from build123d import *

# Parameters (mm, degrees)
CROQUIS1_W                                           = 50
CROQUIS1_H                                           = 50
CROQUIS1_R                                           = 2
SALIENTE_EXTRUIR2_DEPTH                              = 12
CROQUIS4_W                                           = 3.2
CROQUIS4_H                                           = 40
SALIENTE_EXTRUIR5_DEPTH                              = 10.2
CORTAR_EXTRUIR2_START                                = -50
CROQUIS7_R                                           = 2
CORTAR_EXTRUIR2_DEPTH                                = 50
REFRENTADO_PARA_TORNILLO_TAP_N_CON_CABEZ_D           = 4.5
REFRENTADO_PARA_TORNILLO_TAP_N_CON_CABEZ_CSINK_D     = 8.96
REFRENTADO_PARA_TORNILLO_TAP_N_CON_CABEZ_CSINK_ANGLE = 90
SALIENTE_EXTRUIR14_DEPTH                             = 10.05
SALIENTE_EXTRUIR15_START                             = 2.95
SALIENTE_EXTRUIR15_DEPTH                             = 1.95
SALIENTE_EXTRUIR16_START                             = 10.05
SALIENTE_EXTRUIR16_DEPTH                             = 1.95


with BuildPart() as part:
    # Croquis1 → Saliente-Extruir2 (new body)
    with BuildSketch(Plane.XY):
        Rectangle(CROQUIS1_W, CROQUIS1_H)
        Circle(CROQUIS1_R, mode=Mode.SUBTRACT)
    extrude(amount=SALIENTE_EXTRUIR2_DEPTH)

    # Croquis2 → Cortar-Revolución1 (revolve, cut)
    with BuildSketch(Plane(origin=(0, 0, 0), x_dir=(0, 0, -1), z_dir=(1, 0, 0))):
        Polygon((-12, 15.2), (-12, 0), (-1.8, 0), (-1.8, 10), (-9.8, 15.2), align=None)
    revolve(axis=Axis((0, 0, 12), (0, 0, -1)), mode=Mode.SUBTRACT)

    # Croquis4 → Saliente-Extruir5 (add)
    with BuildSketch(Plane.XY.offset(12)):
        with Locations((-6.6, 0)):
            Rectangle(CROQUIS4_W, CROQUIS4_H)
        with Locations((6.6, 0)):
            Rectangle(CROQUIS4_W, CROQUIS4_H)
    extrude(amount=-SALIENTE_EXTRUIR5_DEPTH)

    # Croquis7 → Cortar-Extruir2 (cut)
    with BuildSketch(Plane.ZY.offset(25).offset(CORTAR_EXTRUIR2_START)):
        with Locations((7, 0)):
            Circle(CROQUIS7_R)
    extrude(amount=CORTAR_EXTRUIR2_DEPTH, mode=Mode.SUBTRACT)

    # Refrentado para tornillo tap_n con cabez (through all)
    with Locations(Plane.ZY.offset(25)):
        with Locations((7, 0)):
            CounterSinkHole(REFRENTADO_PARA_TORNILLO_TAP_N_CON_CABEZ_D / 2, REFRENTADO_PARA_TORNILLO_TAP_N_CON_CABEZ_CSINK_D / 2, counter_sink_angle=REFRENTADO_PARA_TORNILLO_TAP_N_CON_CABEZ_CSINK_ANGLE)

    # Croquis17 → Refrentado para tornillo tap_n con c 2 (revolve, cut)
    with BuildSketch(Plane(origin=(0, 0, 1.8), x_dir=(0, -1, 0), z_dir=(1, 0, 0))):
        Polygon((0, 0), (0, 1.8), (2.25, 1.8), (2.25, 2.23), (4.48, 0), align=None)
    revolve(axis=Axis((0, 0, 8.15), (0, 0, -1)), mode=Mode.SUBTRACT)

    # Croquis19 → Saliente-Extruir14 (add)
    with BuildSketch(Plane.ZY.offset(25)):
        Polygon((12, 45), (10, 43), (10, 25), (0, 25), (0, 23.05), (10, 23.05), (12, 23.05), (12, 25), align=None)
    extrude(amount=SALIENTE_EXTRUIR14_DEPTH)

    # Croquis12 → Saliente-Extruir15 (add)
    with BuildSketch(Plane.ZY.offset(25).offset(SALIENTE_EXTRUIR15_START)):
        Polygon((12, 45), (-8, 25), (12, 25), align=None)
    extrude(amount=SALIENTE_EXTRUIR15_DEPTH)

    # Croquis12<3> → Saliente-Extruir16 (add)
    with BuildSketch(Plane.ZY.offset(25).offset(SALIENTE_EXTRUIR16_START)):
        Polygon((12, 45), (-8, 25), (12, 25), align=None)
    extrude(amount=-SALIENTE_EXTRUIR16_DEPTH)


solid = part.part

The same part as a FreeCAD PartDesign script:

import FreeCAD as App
import Part
import Sketcher

V = App.Vector
Q = App.Units.Quantity

doc = App.newDocument("Part")
params = doc.addObject("Spreadsheet::Sheet", "Params")
for row, (alias, value) in enumerate([
    ("sketch1_diameter", "4 mm"),
    ("sketch1_width", "50 mm"),
    ("pad1_length", "12 mm"),
    ("sketch2_width", "10 mm"),
    ("sketch2_width2", "15.2 mm"),
    ("sketch2_height", "10.2 mm"),
    ("sketch2_height2", "2.2 mm"),
    ("groove_angle", "360 deg"),
    ("sketch3_height", "40 mm"),
    ("sketch3_width", "3.2 mm"),
    ("pad2_length", "10.2 mm"),
    ("sketch4_diameter", "4 mm"),
    ("pocket1_length", "50 mm"),
    ("sketch5_diameter", "4.5 mm"),
    ("hole_diameter", "4.5 mm"),
    ("hole_csink_diameter", "8.96 mm"),
    ("sketch6_height", "1.8 mm"),
    ("sketch6_width", "4.48 mm"),
    ("sketch6_width2", "2.25 mm"),
    ("groove2_angle", "360 deg"),
    ("sketch7_width", "18 mm"),
    ("sketch7_height", "10 mm"),
    ("sketch7_height2", "12 mm"),
    ("sketch7_width2", "1.95 mm"),
    ("pad3_length", "10.05 mm"),
    ("sketch8_width", "20 mm"),
    ("pad4_length", "1.95 mm"),
    ("sketch9_width", "20 mm"),
    ("pad5_length", "1.95 mm"),
], start=1):
    params.set(f"A{row}", alias)
    params.set(f"B{row}", "=" + value)
    params.setAlias(f"B{row}", alias)

body = doc.addObject("PartDesign::Body", "Body")

# Sketch on XY plane
sketch1 = body.newObject("Sketcher::SketchObject", "Sketch")
sketch1.AttachmentSupport = (doc.getObject("XY_Plane"), [""])
sketch1.MapMode = "FlatFace"
sketch1.addGeometry([
    Part.LineSegment(V(-25, 25, 0), V(-25, -25, 0)),  # 0
    Part.LineSegment(V(-25, -25, 0), V(25, -25, 0)),  # 1
    Part.LineSegment(V(25, -25, 0), V(25, 25, 0)),  # 2
    Part.LineSegment(V(25, 25, 0), V(-25, 25, 0)),  # 3
    Part.Circle(V(0, 0, 0), V(0, 0, 1), 2),  # 4
], False)
sketch1.addConstraint([
    Sketcher.Constraint("Coincident", 0, 2, 1, 1),
    Sketcher.Constraint("Coincident", 1, 2, 2, 1),
    Sketcher.Constraint("Coincident", 2, 2, 3, 1),
    Sketcher.Constraint("Coincident", 3, 2, 0, 1),
    Sketcher.Constraint("Vertical", 0),
    Sketcher.Constraint("Horizontal", 1),
    Sketcher.Constraint("Vertical", 2),
    Sketcher.Constraint("Horizontal", 3),
    Sketcher.Constraint("Coincident", 4, 3, -1, 1),
    Sketcher.Constraint("Symmetric", 0, 2, 2, 2, -1, 1),
    Sketcher.Constraint("Equal", 3, 0),
    Sketcher.Constraint("Diameter", 4, Q("4 mm")),
    Sketcher.Constraint("DistanceX", 1, 1, 1, 2, Q("50 mm")),
])
sketch1.setExpression("Constraints[11]", "Params.sketch1_diameter")
sketch1.setExpression("Constraints[12]", "Params.sketch1_width")
pad1 = body.newObject("PartDesign::Pad", "Pad")
pad1.Profile = sketch1
pad1.setExpression("Length", "Params.pad1_length")

# Sketch on YZ plane
sketch2 = body.newObject("Sketcher::SketchObject", "Sketch001")
sketch2.AttachmentSupport = (doc.getObject("YZ_Plane"), [""])
sketch2.MapMode = "FlatFace"
sketch2.addGeometry([
    Part.LineSegment(V(15.2, 12, 0), V(0, 12, 0)),  # 0
    Part.LineSegment(V(0, 12, 0), V(0, 1.8, 0)),  # 1
    Part.LineSegment(V(0, 1.8, 0), V(10, 1.8, 0)),  # 2
    Part.LineSegment(V(10, 1.8, 0), V(15.2, 9.8, 0)),  # 3
    Part.LineSegment(V(15.2, 9.8, 0), V(15.2, 12, 0)),  # 4
], False)
sketch2.addConstraint([
    Sketcher.Constraint("Coincident", 0, 2, 1, 1),
    Sketcher.Constraint("Coincident", 1, 2, 2, 1),
    Sketcher.Constraint("Coincident", 2, 2, 3, 1),
    Sketcher.Constraint("Coincident", 3, 2, 4, 1),
    Sketcher.Constraint("Coincident", 4, 2, 0, 1),
    Sketcher.Constraint("Horizontal", 0),
    Sketcher.Constraint("Vertical", 1),
    Sketcher.Constraint("Horizontal", 2),
    Sketcher.Constraint("Vertical", 4),
    Sketcher.Constraint("PointOnObject", 0, 2, -2),
    Sketcher.Constraint("DistanceX", 2, 1, 2, 2, Q("10 mm")),
    Sketcher.Constraint("DistanceX", 0, 2, 0, 1, Q("15.2 mm")),
    Sketcher.Constraint("DistanceY", 1, 2, 1, 1, Q("10.2 mm")),
    Sketcher.Constraint("DistanceY", 4, 1, 4, 2, Q("2.2 mm")),
    Sketcher.Constraint("DistanceY", -1, 1, 0, 2, Q("12 mm")),
])
sketch2.setExpression("Constraints[10]", "Params.sketch2_width")
sketch2.setExpression("Constraints[11]", "Params.sketch2_width2")
sketch2.setExpression("Constraints[12]", "Params.sketch2_height")
sketch2.setExpression("Constraints[13]", "Params.sketch2_height2")
groove = body.newObject("PartDesign::Groove", "Groove")
groove.Profile = sketch2
groove.ReferenceAxis = (sketch2, ["V_Axis"])
groove.setExpression("Angle", "Params.groove_angle")

# Sketch on XY plane
sketch3 = body.newObject("Sketcher::SketchObject", "Sketch002")
sketch3.AttachmentSupport = (doc.getObject("XY_Plane"), [""])
sketch3.MapMode = "FlatFace"
sketch3.AttachmentOffset = App.Placement(V(0, 0, 12), App.Rotation())
sketch3.addGeometry([
    Part.LineSegment(V(-8.2, 20, 0), V(-8.2, -20, 0)),  # 0
    Part.LineSegment(V(-8.2, -20, 0), V(-5, -20, 0)),  # 1
    Part.LineSegment(V(-5, -20, 0), V(-5, 20, 0)),  # 2
    Part.LineSegment(V(-5, 20, 0), V(-8.2, 20, 0)),  # 3
    Part.LineSegment(V(5, 20, 0), V(5, -20, 0)),  # 4
    Part.LineSegment(V(5, -20, 0), V(8.2, -20, 0)),  # 5
    Part.LineSegment(V(8.2, -20, 0), V(8.2, 20, 0)),  # 6
    Part.LineSegment(V(8.2, 20, 0), V(5, 20, 0)),  # 7
], False)
sketch3.addConstraint([
    Sketcher.Constraint("Coincident", 0, 2, 1, 1),
    Sketcher.Constraint("Coincident", 1, 2, 2, 1),
    Sketcher.Constraint("Coincident", 2, 2, 3, 1),
    Sketcher.Constraint("Coincident", 3, 2, 0, 1),
    Sketcher.Constraint("Coincident", 4, 2, 5, 1),
    Sketcher.Constraint("Coincident", 5, 2, 6, 1),
    Sketcher.Constraint("Coincident", 6, 2, 7, 1),
    Sketcher.Constraint("Coincident", 7, 2, 4, 1),
    Sketcher.Constraint("Vertical", 0),
    Sketcher.Constraint("Horizontal", 1),
    Sketcher.Constraint("Vertical", 2),
    Sketcher.Constraint("Horizontal", 3),
    Sketcher.Constraint("Vertical", 4),
    Sketcher.Constraint("Horizontal", 5),
    Sketcher.Constraint("Vertical", 6),
    Sketcher.Constraint("Horizontal", 7),
    Sketcher.Constraint("Symmetric", 2, 2, 4, 2, -1, 1),
    Sketcher.Constraint("Symmetric", 0, 2, 6, 2, -1, 1),
    Sketcher.Constraint("Horizontal", 1, 2, 4, 2),
    Sketcher.Constraint("DistanceY", 0, 2, 0, 1, Q("40 mm")),
    Sketcher.Constraint("DistanceX", 1, 1, 1, 2, Q("3.2 mm")),
    Sketcher.Constraint("DistanceX", 1, 2, -1, 1, Q("5 mm")),
])
sketch3.setExpression("Constraints[19]", "Params.sketch3_height")
sketch3.setExpression("Constraints[20]", "Params.sketch3_width")
pad2 = body.newObject("PartDesign::Pad", "Pad001")
pad2.Profile = sketch3
pad2.setExpression("Length", "Params.pad2_length")
pad2.Reversed = True

# Sketch on YZ plane
sketch4 = body.newObject("Sketcher::SketchObject", "Sketch003")
sketch4.AttachmentSupport = (doc.getObject("YZ_Plane"), [""])
sketch4.MapMode = "FlatFace"
sketch4.AttachmentOffset = App.Placement(V(0, 0, 25), App.Rotation())
sketch4.addGeometry(Part.Circle(V(0, 7, 0), V(0, 0, 1), 2), False)
sketch4.addConstraint([
    Sketcher.Constraint("PointOnObject", 0, 3, -2),
    Sketcher.Constraint("Diameter", 0, Q("4 mm")),
    Sketcher.Constraint("DistanceY", -1, 1, 0, 3, Q("7 mm")),
])
sketch4.setExpression("Constraints[1]", "Params.sketch4_diameter")
pocket1 = body.newObject("PartDesign::Pocket", "Pocket")
pocket1.Profile = sketch4
pocket1.setExpression("Length", "Params.pocket1_length")

# Sketch on YZ plane
sketch5 = body.newObject("Sketcher::SketchObject", "Sketch004")
sketch5.AttachmentSupport = (doc.getObject("YZ_Plane"), [""])
sketch5.MapMode = "FlatFace"
sketch5.AttachmentOffset = App.Placement(V(0, 0, -25), App.Rotation())
sketch5.addGeometry(Part.Circle(V(0, 7, 0), V(0, 0, 1), 2.25), False)
sketch5.addConstraint([
    Sketcher.Constraint("PointOnObject", 0, 3, -2),
    Sketcher.Constraint("Diameter", 0, Q("4.5 mm")),
    Sketcher.Constraint("DistanceY", -1, 1, 0, 3, Q("7 mm")),
])
sketch5.setExpression("Constraints[1]", "Params.sketch5_diameter")
doc.recompute()
hole = body.newObject("PartDesign::Hole", "Hole")
hole.Profile = sketch5
hole.ThreadType = "None"
hole.setExpression("Diameter", "Params.hole_diameter")
hole.DepthType = "ThroughAll"
hole.HoleCutType = "Countersink"
hole.setExpression("HoleCutDiameter", "Params.hole_csink_diameter")
hole.HoleCutCountersinkAngle = 90
hole.Reversed = True

# Sketch on YZ plane
sketch6 = body.newObject("Sketcher::SketchObject", "Sketch005")
sketch6.AttachmentSupport = (doc.getObject("YZ_Plane"), [""])
sketch6.MapMode = "FlatFace"
sketch6.addGeometry([
    Part.LineSegment(V(0, 0, 0), V(0, 1.8, 0)),  # 0
    Part.LineSegment(V(0, 1.8, 0), V(-4.48, 1.8, 0)),  # 1
    Part.LineSegment(V(-4.48, 1.8, 0), V(-2.25, -0.43, 0)),  # 2
    Part.LineSegment(V(-2.25, -0.43, 0), V(-2.25, 0, 0)),  # 3
    Part.LineSegment(V(-2.25, 0, 0), V(0, 0, 0)),  # 4
], False)
sketch6.addConstraint([
    Sketcher.Constraint("Coincident", 0, 2, 1, 1),
    Sketcher.Constraint("Coincident", 1, 2, 2, 1),
    Sketcher.Constraint("Coincident", 2, 2, 3, 1),
    Sketcher.Constraint("Coincident", 3, 2, 4, 1),
    Sketcher.Constraint("Coincident", 4, 2, 0, 1),
    Sketcher.Constraint("Vertical", 0),
    Sketcher.Constraint("Horizontal", 1),
    Sketcher.Constraint("Vertical", 3),
    Sketcher.Constraint("Horizontal", 4),
    Sketcher.Constraint("Coincident", 4, 2, -1, 1),
    Sketcher.Constraint("Angle", 2, Q("-45 deg")),
    Sketcher.Constraint("DistanceY", 0, 1, 0, 2, Q("1.8 mm")),
    Sketcher.Constraint("DistanceX", 1, 2, 1, 1, Q("4.48 mm")),
    Sketcher.Constraint("DistanceX", 4, 1, 4, 2, Q("2.25 mm")),
])
sketch6.setExpression("Constraints[11]", "Params.sketch6_height")
sketch6.setExpression("Constraints[12]", "Params.sketch6_width")
sketch6.setExpression("Constraints[13]", "Params.sketch6_width2")
groove2 = body.newObject("PartDesign::Groove", "Groove001")
groove2.Profile = sketch6
groove2.ReferenceAxis = (sketch6, ["V_Axis"])
groove2.setExpression("Angle", "Params.groove2_angle")

# Sketch on YZ plane
sketch7 = body.newObject("Sketcher::SketchObject", "Sketch006")
sketch7.AttachmentSupport = (doc.getObject("YZ_Plane"), [""])
sketch7.MapMode = "FlatFace"
sketch7.AttachmentOffset = App.Placement(V(0, 0, -25), App.Rotation())
sketch7.addGeometry([
    Part.LineSegment(V(45, 12, 0), V(43, 10, 0)),  # 0
    Part.LineSegment(V(43, 10, 0), V(25, 10, 0)),  # 1
    Part.LineSegment(V(25, 10, 0), V(25, 0, 0)),  # 2
    Part.LineSegment(V(25, 0, 0), V(23.05, 0, 0)),  # 3
    Part.LineSegment(V(23.05, 0, 0), V(23.05, 12, 0)),  # 4
    Part.LineSegment(V(23.05, 12, 0), V(45, 12, 0)),  # 5
], False)
sketch7.addConstraint([
    Sketcher.Constraint("Coincident", 0, 2, 1, 1),
    Sketcher.Constraint("Coincident", 1, 2, 2, 1),
    Sketcher.Constraint("Coincident", 2, 2, 3, 1),
    Sketcher.Constraint("Coincident", 3, 2, 4, 1),
    Sketcher.Constraint("Coincident", 4, 2, 5, 1),
    Sketcher.Constraint("Coincident", 5, 2, 0, 1),
    Sketcher.Constraint("Horizontal", 1),
    Sketcher.Constraint("Vertical", 2),
    Sketcher.Constraint("Horizontal", 3),
    Sketcher.Constraint("Vertical", 4),
    Sketcher.Constraint("Horizontal", 5),
    Sketcher.Constraint("PointOnObject", 2, 2, -1),
    Sketcher.Constraint("DistanceX", 1, 2, 1, 1, Q("18 mm")),
    Sketcher.Constraint("DistanceY", 2, 2, 2, 1, Q("10 mm")),
    Sketcher.Constraint("DistanceY", 4, 1, 4, 2, Q("12 mm")),
    Sketcher.Constraint("Angle", 0, Q("-135 deg")),
    Sketcher.Constraint("DistanceX", -1, 1, 0, 2, Q("43 mm")),
    Sketcher.Constraint("DistanceX", 3, 2, 3, 1, Q("1.95 mm")),
])
sketch7.setExpression("Constraints[12]", "Params.sketch7_width")
sketch7.setExpression("Constraints[13]", "Params.sketch7_height")
sketch7.setExpression("Constraints[14]", "Params.sketch7_height2")
sketch7.setExpression("Constraints[17]", "Params.sketch7_width2")
pad3 = body.newObject("PartDesign::Pad", "Pad002")
pad3.Profile = sketch7
pad3.setExpression("Length", "Params.pad3_length")
pad3.Reversed = True

# Sketch on YZ plane
sketch8 = body.newObject("Sketcher::SketchObject", "Sketch007")
sketch8.AttachmentSupport = (doc.getObject("YZ_Plane"), [""])
sketch8.MapMode = "FlatFace"
sketch8.AttachmentOffset = App.Placement(V(0, 0, -27.95), App.Rotation())
sketch8.addGeometry([
    Part.LineSegment(V(45, 12, 0), V(25, -8, 0)),
    Part.LineSegment(V(25, -8, 0), V(25, 12, 0)),
    Part.LineSegment(V(25, 12, 0), V(45, 12, 0)),
], False)
sketch8.addConstraint([
    Sketcher.Constraint("Coincident", 0, 2, 1, 1),
    Sketcher.Constraint("Coincident", 1, 2, 2, 1),
    Sketcher.Constraint("Coincident", 2, 2, 0, 1),
    Sketcher.Constraint("Vertical", 1),
    Sketcher.Constraint("Horizontal", 2),
    Sketcher.Constraint("Equal", 2, 1),
    Sketcher.Constraint("DistanceX", 2, 1, 2, 2, Q("20 mm")),
    Sketcher.Constraint("DistanceX", -1, 1, 0, 2, Q("25 mm")),
    Sketcher.Constraint("DistanceY", 0, 2, -1, 1, Q("8 mm")),
])
sketch8.setExpression("Constraints[6]", "Params.sketch8_width")
pad4 = body.newObject("PartDesign::Pad", "Pad003")
pad4.Profile = sketch8
pad4.setExpression("Length", "Params.pad4_length")
pad4.Reversed = True

# Sketch on YZ plane
sketch9 = body.newObject("Sketcher::SketchObject", "Sketch008")
sketch9.AttachmentSupport = (doc.getObject("YZ_Plane"), [""])
sketch9.MapMode = "FlatFace"
sketch9.AttachmentOffset = App.Placement(V(0, 0, -35.05), App.Rotation())
sketch9.addGeometry([
    Part.LineSegment(V(45, 12, 0), V(25, -8, 0)),
    Part.LineSegment(V(25, -8, 0), V(25, 12, 0)),
    Part.LineSegment(V(25, 12, 0), V(45, 12, 0)),
], False)
sketch9.addConstraint([
    Sketcher.Constraint("Coincident", 0, 2, 1, 1),
    Sketcher.Constraint("Coincident", 1, 2, 2, 1),
    Sketcher.Constraint("Coincident", 2, 2, 0, 1),
    Sketcher.Constraint("Vertical", 1),
    Sketcher.Constraint("Horizontal", 2),
    Sketcher.Constraint("Equal", 2, 1),
    Sketcher.Constraint("DistanceX", 2, 1, 2, 2, Q("20 mm")),
    Sketcher.Constraint("DistanceX", -1, 1, 0, 2, Q("25 mm")),
    Sketcher.Constraint("DistanceY", 0, 2, -1, 1, Q("8 mm")),
])
sketch9.setExpression("Constraints[6]", "Params.sketch9_width")
pad5 = body.newObject("PartDesign::Pad", "Pad004")
pad5.Profile = sketch9
pad5.setExpression("Length", "Params.pad5_length")

doc.recompute()
